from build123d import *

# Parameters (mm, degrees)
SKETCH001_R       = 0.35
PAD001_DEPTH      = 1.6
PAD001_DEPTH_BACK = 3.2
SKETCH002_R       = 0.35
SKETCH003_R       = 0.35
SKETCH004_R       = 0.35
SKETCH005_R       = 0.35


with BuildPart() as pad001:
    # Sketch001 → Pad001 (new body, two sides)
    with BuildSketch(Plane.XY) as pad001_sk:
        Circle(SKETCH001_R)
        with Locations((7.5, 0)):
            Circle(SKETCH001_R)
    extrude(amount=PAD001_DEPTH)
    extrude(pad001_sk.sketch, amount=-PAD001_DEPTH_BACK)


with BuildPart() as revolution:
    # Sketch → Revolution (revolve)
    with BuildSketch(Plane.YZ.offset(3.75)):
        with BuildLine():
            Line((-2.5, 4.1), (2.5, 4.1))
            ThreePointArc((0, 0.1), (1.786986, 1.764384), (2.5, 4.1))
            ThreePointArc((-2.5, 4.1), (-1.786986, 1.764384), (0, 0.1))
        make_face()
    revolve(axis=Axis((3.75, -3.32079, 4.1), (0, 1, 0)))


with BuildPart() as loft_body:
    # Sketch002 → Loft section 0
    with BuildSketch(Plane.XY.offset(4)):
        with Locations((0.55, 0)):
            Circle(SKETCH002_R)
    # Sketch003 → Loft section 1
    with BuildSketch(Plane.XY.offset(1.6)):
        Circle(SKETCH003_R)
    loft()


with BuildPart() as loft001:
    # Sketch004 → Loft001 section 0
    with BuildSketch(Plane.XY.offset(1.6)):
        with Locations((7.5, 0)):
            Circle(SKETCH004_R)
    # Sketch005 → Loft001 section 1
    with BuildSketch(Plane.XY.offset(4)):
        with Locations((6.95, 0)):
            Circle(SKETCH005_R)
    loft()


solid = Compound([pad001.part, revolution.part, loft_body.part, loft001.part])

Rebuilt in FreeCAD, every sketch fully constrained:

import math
import FreeCAD as App
import Part
import Sketcher

V = App.Vector
Q = App.Units.Quantity

doc = App.newDocument("Part")
params = doc.addObject("Spreadsheet::Sheet", "Params")
for row, (alias, value) in enumerate([
    ("sketch1_diameter", "0.7 mm"),
    ("pad1_length", "1.6 mm"),
    ("pad1_length2", "3.2 mm"),
    ("sketch2_width", "5 mm"),
    ("revolution_angle", "360 deg"),
    ("sketch3_diameter", "0.7 mm"),
    ("sketch4_diameter", "0.7 mm"),
    ("sketch5_diameter", "0.7 mm"),
    ("sketch6_diameter", "0.7 mm"),
], start=1):
    params.set(f"A{row}", alias)
    params.set(f"B{row}", "=" + value)
    params.setAlias(f"B{row}", alias)

body = doc.addObject("PartDesign::Body", "Body")
body.AllowCompound = True

sketch1 = body.newObject("Sketcher::SketchObject", "Sketch")
sketch1.AttachmentSupport = (doc.getObject("XY_Plane"), [""])
sketch1.MapMode = "FlatFace"
sketch1.addGeometry([
    Part.Circle(V(0, 0, 0), V(0, 0, 1), 0.35),
    Part.Circle(V(7.5, 0, 0), V(0, 0, 1), 0.35),
], False)
sketch1.addConstraint([
    Sketcher.Constraint("Coincident", 0, 3, -1, 1),
    Sketcher.Constraint("Equal", 0, 1),
    Sketcher.Constraint("PointOnObject", 1, 3, -1),
    Sketcher.Constraint("Diameter", 0, Q("0.7 mm")),
    Sketcher.Constraint("DistanceX", -1, 1, 1, 3, Q("7.5 mm")),
])
sketch1.setExpression("Constraints[3]", "Params.sketch1_diameter")
pad1 = body.newObject("PartDesign::Pad", "Pad")
pad1.Profile = sketch1
pad1.Type = "TwoLengths"
pad1.setExpression("Length", "Params.pad1_length")
pad1.setExpression("Length2", "Params.pad1_length2")
body2 = doc.addObject("PartDesign::Body", "Body001")

sketch2 = body2.newObject("Sketcher::SketchObject", "Sketch001")
sketch2.AttachmentSupport = (doc.getObject("YZ_Plane001"), [""])
sketch2.MapMode = "FlatFace"
sketch2.AttachmentOffset = App.Placement(V(0, 0, 3.75), App.Rotation())
sketch2.addGeometry([
    Part.LineSegment(V(2.5, 4.1, 0), V(-2.5, 4.1, 0)),
    Part.ArcOfCircle(Part.Circle(V(2.2, 4.3, 0), V(0, 0, 1), 4.7), math.radians(-178), math.radians(-118)),
    Part.ArcOfCircle(Part.Circle(V(-2.2, 4.3, 0), V(0, 0, 1), 4.7), math.radians(-62), math.radians(-2)),
], False)
sketch2.addGeometry(Part.LineSegment(V(-2.5, 4.1, 0), V(2.5, 4.1, 0)), True)
sketch2.addConstraint([
    Sketcher.Constraint("Coincident", 0, 2, 1, 1),
    Sketcher.Constraint("Coincident", 1, 2, 2, 1),
    Sketcher.Constraint("Coincident", 2, 2, 0, 1),
    Sketcher.Constraint("Horizontal", 0),
    Sketcher.Constraint("Horizontal", 3),
    Sketcher.Constraint("Coincident", 3, 1, 0, 2),
    Sketcher.Constraint("Equal", 1, 2),
    Sketcher.Constraint("Symmetric", 1, 3, 2, 3, -2),
    Sketcher.Constraint("Equal", 0, 3),
    Sketcher.Constraint("DistanceX", 0, 2, 0, 1, Q("5 mm")),
    Sketcher.Constraint("DistanceY", 1, 2, 0, 2, Q("4 mm")),
    Sketcher.Constraint("DistanceY", -1, 1, 0, 2, Q("4.1 mm")),
    Sketcher.Constraint("DistanceY", -1, 1, 1, 3, Q("4.26 mm")),
])
sketch2.setExpression("Constraints[9]", "Params.sketch2_width")
revolution = body2.newObject("PartDesign::Revolution", "Revolution")
revolution.Profile = sketch2
revolution.ReferenceAxis = (sketch2, ["Axis0"])
revolution.setExpression("Angle", "Params.revolution_angle")
body3 = doc.addObject("PartDesign::Body", "Body002")

sketch3 = body3.newObject("Sketcher::SketchObject", "Sketch002")
sketch3.AttachmentSupport = (doc.getObject("XY_Plane002"), [""])
sketch3.MapMode = "FlatFace"
sketch3.AttachmentOffset = App.Placement(V(0, 0, 4), App.Rotation())
sketch3.addGeometry(Part.Circle(V(0.55, 0, 0), V(0, 0, 1), 0.35), False)
sketch3.addConstraint([
    Sketcher.Constraint("PointOnObject", 0, 3, -1),
    Sketcher.Constraint("Diameter", 0, Q("0.7 mm")),
    Sketcher.Constraint("DistanceX", -1, 1, 0, 3, Q("0.55 mm")),
])
sketch3.setExpression("Constraints[1]", "Params.sketch3_diameter")

sketch4 = body3.newObject("Sketcher::SketchObject", "Sketch003")
sketch4.AttachmentSupport = (doc.getObject("XY_Plane002"), [""])
sketch4.MapMode = "FlatFace"
sketch4.AttachmentOffset = App.Placement(V(0, 0, 1.6), App.Rotation())
sketch4.addGeometry(Part.Circle(V(0, 0, 0), V(0, 0, 1), 0.35), False)
sketch4.addConstraint([
    Sketcher.Constraint("Coincident", 0, 3, -1, 1),
    Sketcher.Constraint("Diameter", 0, Q("0.7 mm")),
])
sketch4.setExpression("Constraints[1]", "Params.sketch4_diameter")

additiveloft = body3.newObject("PartDesign::AdditiveLoft", "AdditiveLoft")
additiveloft.Profile = sketch3
additiveloft.Sections = [sketch4]
body4 = doc.addObject("PartDesign::Body", "Body003")

sketch5 = body4.newObject("Sketcher::SketchObject", "Sketch004")
sketch5.AttachmentSupport = (doc.getObject("XY_Plane003"), [""])
sketch5.MapMode = "FlatFace"
sketch5.AttachmentOffset = App.Placement(V(0, 0, 1.6), App.Rotation())
sketch5.addGeometry(Part.Circle(V(7.5, 0, 0), V(0, 0, 1), 0.35), False)
sketch5.addConstraint([
    Sketcher.Constraint("PointOnObject", 0, 3, -1),
    Sketcher.Constraint("Diameter", 0, Q("0.7 mm")),
    Sketcher.Constraint("DistanceX", -1, 1, 0, 3, Q("7.5 mm")),
])
sketch5.setExpression("Constraints[1]", "Params.sketch5_diameter")

sketch6 = body4.newObject("Sketcher::SketchObject", "Sketch005")
sketch6.AttachmentSupport = (doc.getObject("XY_Plane003"), [""])
sketch6.MapMode = "FlatFace"
sketch6.AttachmentOffset = App.Placement(V(0, 0, 4), App.Rotation())
sketch6.addGeometry(Part.Circle(V(6.95, 0, 0), V(0, 0, 1), 0.35), False)
sketch6.addConstraint([
    Sketcher.Constraint("PointOnObject", 0, 3, -1),
    Sketcher.Constraint("Diameter", 0, Q("0.7 mm")),
    Sketcher.Constraint("DistanceX", -1, 1, 0, 3, Q("6.95 mm")),
])
sketch6.setExpression("Constraints[1]", "Params.sketch6_diameter")

additiveloft2 = body4.newObject("PartDesign::AdditiveLoft", "AdditiveLoft001")
additiveloft2.Profile = sketch5
additiveloft2.Sections = [sketch6]

doc.recompute()
